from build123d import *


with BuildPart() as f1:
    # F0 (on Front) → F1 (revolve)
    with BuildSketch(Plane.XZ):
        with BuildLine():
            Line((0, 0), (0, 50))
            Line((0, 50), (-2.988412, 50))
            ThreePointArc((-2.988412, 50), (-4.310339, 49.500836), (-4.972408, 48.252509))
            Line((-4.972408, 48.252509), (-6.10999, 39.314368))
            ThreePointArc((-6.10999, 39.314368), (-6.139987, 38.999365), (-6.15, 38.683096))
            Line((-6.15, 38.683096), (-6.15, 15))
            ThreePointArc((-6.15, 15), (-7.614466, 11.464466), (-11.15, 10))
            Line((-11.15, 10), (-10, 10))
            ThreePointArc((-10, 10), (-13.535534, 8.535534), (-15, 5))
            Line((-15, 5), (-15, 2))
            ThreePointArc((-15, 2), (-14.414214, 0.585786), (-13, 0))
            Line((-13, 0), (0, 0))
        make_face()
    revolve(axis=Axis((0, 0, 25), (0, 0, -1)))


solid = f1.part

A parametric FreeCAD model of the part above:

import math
import FreeCAD as App
import Part
import Sketcher
from FreeCAD import Vector
Q = App.Units.Quantity

doc = App.newDocument("Part")
body = doc.addObject("PartDesign::Body", "Body")

# Sketch on XZ plane
sketch1 = doc.addObject("Sketcher::SketchObject", "Sketch")
body.addObject(sketch1)
sketch1.AttachmentSupport = (doc.XZ_Plane, [""])
sketch1.MapMode = "FlatFace"
sketch1.addGeometry([
    Part.LineSegment(Vector(0, 0, 0), Vector(0, 50, 0)),  # 0
    Part.LineSegment(Vector(0, 50, 0), Vector(-2.988412, 50, 0)),  # 1
    Part.ArcOfCircle(Part.Circle(Vector(-2.988412, 47.999999, 0), Vector(0, 0, 1), 2.000001), math.radians(90.000011), math.radians(172.746775)),  # 2
    Part.LineSegment(Vector(-4.972408, 48.252509, 0), Vector(-6.10999, 39.314368, 0)),  # 3
    Part.ArcOfCircle(Part.Circle(Vector(-1.149689, 38.68308, 0), Vector(0, 0, 1), 5.000311), math.radians(172.747071), math.radians(179.999821)),  # 4
    Part.LineSegment(Vector(-6.15, 38.683096, 0), Vector(-6.15, 15, 0)),  # 5
    Part.ArcOfCircle(Part.Circle(Vector(-11.15, 15, 0), Vector(0, 0, 1), 5), math.radians(-90.000004), math.radians(0.000004)),  # 6
    Part.LineSegment(Vector(-11.15, 10, 0), Vector(-10, 10, 0)),  # 7
    Part.ArcOfCircle(Part.Circle(Vector(-10, 5, 0), Vector(0, 0, 1), 5), math.radians(89.999996), math.radians(180.000004)),  # 8
    Part.LineSegment(Vector(-15, 5, 0), Vector(-15, 2, 0)),  # 9
    Part.ArcOfCircle(Part.Circle(Vector(-13.000001, 1.999999, 0), Vector(0, 0, 1), 1.999999), math.radians(179.999957), math.radians(270.000043)),  # 10
    Part.LineSegment(Vector(-13, 0, 0), Vector(0, 0, 0)),  # 11
], False)
sketch1.addConstraint([
    Sketcher.Constraint("Coincident", 0, 2, 1, 1),
    Sketcher.Constraint("Tangent", 1, 2, 2, 1),
    Sketcher.Constraint("Tangent", 2, 2, 3, 1),
    Sketcher.Constraint("Coincident", 3, 2, 4, 1),
    Sketcher.Constraint("Coincident", 4, 2, 5, 1),
    Sketcher.Constraint("Tangent", 5, 2, 6, 2),
    Sketcher.Constraint("Tangent", 6, 1, 7, 1),
    Sketcher.Constraint("Tangent", 7, 2, 8, 1),
    Sketcher.Constraint("Tangent", 8, 2, 9, 1),
    Sketcher.Constraint("Tangent", 9, 2, 10, 1),
    Sketcher.Constraint("Tangent", 10, 2, 11, 1),
    Sketcher.Constraint("Coincident", 11, 2, 0, 1),
    Sketcher.Constraint("Vertical", 0),
    Sketcher.Constraint("Horizontal", 1),
    Sketcher.Constraint("Vertical", 5),
    Sketcher.Constraint("Horizontal", 7),
    Sketcher.Constraint("Vertical", 9),
    Sketcher.Constraint("Horizontal", 11),
    Sketcher.Constraint("Coincident", 11, 2, -1, 1),
    Sketcher.Constraint("Equal", 6, 8),
    Sketcher.Constraint("Radius", 2, Q("2.000001 mm")),
    Sketcher.Constraint("Radius", 6, Q("5 mm")),
    Sketcher.Constraint("Radius", 10, Q("1.999999 mm")),
    Sketcher.Constraint("DistanceX", 11, 1, 11, 2, Q("13 mm")),
    Sketcher.Constraint("DistanceY", 0, 1, 0, 2, Q("50 mm")),
    Sketcher.Constraint("DistanceY", 9, 2, 9, 1, Q("3 mm")),
    Sketcher.Constraint("DistanceX", 7, 1, 7, 2, Q("1.15 mm")),
    Sketcher.Constraint("Radius", 4, Q("5.000311 mm")),
    Sketcher.Constraint("DistanceX", 1, 2, 1, 1, Q("2.988412 mm")),
    Sketcher.Constraint("DistanceX", 3, 2, 4, 3, Q("4.960301 mm")),
    Sketcher.Constraint("Distance", 3, Q("9.010242 mm")),
    Sketcher.Constraint("DistanceY", 5, 2, 5, 1, Q("23.683096 mm")),
])
revolution = doc.addObject("PartDesign::Revolution", "Revolution")
body.addObject(revolution)
revolution.Profile = sketch1
revolution.ReferenceAxis = (sketch1, ["V_Axis"])
revolution.Angle = 360

doc.recompute()
